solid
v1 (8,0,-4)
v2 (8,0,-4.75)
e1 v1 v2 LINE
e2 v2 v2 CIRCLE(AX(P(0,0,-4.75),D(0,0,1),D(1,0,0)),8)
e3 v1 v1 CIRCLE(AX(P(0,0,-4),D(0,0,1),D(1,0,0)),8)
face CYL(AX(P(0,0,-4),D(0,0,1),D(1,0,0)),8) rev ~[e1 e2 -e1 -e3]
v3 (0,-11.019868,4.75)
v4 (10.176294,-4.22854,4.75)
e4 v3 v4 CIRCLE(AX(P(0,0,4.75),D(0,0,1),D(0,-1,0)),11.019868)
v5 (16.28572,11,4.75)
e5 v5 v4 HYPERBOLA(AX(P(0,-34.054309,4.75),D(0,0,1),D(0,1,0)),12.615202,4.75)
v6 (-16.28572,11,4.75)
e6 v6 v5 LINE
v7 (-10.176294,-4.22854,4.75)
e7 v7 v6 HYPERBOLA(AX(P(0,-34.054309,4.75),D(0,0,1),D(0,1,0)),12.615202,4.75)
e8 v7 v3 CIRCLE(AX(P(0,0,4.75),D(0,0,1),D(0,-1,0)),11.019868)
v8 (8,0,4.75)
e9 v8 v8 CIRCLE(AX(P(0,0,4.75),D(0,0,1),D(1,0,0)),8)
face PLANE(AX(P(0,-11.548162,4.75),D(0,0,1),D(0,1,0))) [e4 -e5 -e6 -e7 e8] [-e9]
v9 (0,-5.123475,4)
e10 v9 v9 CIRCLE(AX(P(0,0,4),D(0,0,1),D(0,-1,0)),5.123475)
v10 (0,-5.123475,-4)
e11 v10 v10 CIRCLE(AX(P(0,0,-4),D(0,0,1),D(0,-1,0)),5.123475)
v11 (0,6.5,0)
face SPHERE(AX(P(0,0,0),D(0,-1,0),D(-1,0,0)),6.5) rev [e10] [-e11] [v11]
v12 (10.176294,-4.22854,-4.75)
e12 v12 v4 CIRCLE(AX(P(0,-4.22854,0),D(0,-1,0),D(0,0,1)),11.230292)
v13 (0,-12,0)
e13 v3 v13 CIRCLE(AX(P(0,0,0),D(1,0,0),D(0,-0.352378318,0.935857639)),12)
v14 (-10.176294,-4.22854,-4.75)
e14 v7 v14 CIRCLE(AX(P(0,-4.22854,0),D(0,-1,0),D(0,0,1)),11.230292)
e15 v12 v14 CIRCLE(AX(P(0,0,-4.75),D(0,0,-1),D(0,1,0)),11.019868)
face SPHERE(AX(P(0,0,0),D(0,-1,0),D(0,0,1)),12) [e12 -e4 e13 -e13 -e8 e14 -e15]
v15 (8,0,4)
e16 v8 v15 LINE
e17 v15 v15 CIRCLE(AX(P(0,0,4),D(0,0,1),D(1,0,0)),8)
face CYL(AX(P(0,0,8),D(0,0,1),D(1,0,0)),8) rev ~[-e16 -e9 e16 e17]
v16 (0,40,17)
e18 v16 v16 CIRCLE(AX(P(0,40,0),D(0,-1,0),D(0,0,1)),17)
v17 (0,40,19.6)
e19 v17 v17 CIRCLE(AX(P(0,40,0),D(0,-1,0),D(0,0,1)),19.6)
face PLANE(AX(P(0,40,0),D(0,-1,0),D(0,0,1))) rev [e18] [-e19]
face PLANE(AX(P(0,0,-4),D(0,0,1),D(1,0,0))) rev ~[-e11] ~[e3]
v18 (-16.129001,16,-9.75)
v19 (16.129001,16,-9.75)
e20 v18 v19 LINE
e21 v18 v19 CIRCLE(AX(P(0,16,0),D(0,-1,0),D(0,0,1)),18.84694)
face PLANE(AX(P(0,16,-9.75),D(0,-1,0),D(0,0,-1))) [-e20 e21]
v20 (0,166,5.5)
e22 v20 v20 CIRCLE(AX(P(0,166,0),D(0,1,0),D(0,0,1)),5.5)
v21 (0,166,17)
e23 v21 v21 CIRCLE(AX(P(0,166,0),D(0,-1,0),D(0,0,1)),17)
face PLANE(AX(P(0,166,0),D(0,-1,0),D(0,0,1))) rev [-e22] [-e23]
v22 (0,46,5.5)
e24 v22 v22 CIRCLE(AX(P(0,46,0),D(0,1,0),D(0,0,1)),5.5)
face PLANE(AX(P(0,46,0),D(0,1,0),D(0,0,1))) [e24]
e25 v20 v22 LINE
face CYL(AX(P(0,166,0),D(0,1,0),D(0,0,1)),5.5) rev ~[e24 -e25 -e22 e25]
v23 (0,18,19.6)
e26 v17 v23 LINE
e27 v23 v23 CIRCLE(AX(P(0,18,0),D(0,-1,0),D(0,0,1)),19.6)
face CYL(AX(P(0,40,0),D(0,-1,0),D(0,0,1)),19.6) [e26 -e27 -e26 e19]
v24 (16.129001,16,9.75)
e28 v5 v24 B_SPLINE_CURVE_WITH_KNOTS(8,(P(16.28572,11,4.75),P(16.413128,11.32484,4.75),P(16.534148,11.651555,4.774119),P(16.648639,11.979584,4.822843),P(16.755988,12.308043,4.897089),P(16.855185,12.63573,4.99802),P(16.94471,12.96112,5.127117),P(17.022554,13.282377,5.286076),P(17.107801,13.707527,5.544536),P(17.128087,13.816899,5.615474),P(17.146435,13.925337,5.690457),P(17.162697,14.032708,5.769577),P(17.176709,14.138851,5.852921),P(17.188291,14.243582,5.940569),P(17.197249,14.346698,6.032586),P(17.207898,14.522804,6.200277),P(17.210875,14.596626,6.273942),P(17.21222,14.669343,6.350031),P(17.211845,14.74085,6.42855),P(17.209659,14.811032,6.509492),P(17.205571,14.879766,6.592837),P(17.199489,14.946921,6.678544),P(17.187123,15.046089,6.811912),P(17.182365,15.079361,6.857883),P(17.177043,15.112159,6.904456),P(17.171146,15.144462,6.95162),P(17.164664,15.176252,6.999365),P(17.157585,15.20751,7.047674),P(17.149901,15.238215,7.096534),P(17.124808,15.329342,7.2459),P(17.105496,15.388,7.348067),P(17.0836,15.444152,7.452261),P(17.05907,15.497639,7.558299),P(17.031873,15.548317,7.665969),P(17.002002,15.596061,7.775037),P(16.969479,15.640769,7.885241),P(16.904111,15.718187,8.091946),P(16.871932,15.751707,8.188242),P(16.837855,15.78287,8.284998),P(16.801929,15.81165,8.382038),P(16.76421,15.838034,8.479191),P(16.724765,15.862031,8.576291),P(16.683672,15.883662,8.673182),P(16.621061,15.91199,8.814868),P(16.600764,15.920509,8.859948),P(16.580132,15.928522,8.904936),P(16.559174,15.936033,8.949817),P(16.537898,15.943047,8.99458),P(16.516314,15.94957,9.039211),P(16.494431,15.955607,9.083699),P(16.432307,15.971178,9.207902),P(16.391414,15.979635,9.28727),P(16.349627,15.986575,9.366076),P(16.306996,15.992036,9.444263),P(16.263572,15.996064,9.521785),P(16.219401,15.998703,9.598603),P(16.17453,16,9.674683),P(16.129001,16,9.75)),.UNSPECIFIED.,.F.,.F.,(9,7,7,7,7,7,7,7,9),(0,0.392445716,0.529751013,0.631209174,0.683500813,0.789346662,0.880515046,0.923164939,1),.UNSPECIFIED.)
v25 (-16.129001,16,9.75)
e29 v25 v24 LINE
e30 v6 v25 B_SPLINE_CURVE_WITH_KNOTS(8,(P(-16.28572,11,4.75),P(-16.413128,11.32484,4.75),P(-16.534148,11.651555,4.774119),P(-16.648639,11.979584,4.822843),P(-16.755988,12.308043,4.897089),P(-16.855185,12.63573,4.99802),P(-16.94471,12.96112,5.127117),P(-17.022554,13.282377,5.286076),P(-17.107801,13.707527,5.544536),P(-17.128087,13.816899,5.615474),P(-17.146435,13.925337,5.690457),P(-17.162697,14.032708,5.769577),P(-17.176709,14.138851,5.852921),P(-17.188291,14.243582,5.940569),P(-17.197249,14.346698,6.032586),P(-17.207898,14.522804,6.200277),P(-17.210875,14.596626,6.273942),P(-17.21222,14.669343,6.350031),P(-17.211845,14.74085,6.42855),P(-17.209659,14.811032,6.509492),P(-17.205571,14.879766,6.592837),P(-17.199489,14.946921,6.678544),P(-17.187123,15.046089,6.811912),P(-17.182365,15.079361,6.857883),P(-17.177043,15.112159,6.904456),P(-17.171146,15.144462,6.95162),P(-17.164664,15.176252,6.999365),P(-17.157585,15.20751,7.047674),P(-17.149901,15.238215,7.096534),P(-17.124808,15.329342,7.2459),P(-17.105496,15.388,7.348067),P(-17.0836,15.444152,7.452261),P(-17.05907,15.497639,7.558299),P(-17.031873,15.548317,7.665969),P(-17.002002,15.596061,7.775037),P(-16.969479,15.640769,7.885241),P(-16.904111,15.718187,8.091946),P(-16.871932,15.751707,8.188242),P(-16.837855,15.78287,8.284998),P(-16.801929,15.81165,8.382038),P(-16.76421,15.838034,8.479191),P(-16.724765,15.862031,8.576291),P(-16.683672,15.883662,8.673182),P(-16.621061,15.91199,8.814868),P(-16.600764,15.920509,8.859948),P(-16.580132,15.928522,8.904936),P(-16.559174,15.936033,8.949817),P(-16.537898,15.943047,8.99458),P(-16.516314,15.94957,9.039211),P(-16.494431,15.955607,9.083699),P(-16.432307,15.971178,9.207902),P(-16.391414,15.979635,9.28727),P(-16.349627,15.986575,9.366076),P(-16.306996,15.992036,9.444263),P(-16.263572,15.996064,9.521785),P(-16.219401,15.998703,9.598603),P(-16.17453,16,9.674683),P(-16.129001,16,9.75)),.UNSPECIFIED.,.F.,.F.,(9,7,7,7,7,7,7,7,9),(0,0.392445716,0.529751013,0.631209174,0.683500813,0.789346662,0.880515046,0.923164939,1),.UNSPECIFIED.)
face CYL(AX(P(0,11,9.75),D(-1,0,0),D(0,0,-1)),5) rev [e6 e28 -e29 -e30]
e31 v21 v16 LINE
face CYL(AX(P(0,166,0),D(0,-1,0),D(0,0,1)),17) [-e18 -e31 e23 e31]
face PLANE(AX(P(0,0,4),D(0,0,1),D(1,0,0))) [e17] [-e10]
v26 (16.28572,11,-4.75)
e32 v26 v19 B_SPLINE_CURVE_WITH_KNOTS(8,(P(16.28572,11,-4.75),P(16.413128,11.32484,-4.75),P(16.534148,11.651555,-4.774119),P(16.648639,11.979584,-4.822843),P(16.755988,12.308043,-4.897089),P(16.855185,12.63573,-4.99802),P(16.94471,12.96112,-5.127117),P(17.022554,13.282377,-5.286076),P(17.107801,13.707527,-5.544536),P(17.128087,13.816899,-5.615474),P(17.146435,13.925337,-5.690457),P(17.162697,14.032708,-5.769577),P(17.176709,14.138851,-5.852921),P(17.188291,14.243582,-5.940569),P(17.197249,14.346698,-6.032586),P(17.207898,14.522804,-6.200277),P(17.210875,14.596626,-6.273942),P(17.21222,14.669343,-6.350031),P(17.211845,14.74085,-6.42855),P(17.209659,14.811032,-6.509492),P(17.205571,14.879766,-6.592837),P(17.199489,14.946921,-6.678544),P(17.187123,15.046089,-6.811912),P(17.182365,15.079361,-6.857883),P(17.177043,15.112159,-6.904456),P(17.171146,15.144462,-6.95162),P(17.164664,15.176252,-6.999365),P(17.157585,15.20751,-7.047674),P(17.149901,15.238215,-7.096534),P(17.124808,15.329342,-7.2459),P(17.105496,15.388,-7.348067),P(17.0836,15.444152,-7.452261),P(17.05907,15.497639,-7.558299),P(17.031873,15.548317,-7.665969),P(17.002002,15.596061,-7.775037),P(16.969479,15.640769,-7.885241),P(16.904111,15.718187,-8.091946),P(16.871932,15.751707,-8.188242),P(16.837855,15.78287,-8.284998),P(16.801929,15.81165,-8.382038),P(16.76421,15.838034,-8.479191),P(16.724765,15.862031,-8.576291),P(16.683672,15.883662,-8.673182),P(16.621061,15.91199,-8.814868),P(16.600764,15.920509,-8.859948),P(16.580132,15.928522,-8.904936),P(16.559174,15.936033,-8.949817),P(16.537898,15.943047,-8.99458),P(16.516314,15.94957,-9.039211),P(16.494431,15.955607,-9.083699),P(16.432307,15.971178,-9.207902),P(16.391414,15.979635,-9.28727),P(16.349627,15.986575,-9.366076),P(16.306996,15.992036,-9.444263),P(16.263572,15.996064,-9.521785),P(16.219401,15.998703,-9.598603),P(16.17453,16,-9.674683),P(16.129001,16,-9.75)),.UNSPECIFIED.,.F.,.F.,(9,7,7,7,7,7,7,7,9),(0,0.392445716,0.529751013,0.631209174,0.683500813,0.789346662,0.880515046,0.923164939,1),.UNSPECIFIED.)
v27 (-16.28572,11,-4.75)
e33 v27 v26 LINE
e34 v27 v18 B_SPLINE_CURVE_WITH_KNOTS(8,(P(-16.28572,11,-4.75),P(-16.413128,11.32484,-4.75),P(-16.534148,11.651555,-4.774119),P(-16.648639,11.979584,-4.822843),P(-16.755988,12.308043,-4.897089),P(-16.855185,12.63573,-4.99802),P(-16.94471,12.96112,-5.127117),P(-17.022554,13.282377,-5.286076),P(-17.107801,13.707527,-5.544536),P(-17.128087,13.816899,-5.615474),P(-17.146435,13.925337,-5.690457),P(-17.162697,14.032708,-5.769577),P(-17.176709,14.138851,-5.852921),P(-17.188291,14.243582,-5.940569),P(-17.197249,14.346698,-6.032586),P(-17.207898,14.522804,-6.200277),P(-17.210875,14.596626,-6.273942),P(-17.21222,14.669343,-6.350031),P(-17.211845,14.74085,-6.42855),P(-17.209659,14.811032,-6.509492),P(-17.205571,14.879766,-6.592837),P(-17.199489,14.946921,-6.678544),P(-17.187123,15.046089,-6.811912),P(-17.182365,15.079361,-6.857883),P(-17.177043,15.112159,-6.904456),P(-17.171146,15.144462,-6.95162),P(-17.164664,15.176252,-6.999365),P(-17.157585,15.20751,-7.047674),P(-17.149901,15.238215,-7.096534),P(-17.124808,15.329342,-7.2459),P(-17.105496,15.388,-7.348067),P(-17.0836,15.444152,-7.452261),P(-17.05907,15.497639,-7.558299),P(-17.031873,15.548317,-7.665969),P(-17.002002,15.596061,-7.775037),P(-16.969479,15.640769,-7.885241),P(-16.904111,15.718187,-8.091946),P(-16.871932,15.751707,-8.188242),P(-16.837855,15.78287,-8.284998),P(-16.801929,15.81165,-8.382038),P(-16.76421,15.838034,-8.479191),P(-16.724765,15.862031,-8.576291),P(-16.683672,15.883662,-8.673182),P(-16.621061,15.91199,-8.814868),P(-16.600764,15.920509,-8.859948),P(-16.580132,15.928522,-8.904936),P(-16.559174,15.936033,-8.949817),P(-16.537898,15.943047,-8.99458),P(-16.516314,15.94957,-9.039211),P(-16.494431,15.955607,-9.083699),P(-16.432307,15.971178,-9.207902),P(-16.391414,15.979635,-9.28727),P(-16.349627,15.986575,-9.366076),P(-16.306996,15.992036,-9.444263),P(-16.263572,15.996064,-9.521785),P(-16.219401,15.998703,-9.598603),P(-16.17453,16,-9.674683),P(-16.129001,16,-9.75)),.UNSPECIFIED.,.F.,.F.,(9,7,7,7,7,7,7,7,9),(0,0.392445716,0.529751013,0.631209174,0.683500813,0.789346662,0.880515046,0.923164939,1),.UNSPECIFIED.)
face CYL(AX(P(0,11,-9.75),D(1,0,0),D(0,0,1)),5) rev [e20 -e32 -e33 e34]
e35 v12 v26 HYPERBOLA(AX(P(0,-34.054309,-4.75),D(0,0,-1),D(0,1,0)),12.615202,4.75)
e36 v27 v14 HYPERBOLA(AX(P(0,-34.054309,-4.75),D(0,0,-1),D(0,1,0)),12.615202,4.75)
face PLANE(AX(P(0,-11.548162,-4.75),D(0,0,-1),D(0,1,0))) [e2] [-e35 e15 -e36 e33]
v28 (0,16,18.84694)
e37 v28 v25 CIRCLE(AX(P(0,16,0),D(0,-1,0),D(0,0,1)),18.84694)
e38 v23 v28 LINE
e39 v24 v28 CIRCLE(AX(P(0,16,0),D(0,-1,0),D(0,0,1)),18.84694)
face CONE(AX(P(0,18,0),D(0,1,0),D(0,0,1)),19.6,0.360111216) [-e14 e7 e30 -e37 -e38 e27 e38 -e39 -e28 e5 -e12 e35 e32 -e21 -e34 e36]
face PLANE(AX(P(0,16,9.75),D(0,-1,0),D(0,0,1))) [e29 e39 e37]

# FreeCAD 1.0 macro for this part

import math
import FreeCAD as App
import Part
import Sketcher
Q = App.Units.Quantity

doc = App.newDocument("Part")
body = doc.addObject("PartDesign::Body", "Body")

# Sketch on XY plane
sketch1 = body.newObject("Sketcher::SketchObject", "Sketch")
sketch1.AttachmentSupport = (doc.getObject("XY_Plane"), [""])
sketch1.MapMode = "FlatFace"
sketch1.addGeometry(Part.LineSegment(App.Vector(0, 166, 0), App.Vector(-17, 166, 0)), False)
sketch1.addGeometry(Part.LineSegment(App.Vector(-17, 166, 0), App.Vector(-17, 40, 0)), False)
sketch1.addGeometry(Part.LineSegment(App.Vector(-17, 40, 0), App.Vector(-19.6, 40, 0)), False)
sketch1.addGeometry(Part.LineSegment(App.Vector(-19.6, 40, 0), App.Vector(-19.6, 18, 0)), False)
sketch1.addGeometry(Part.LineSegment(App.Vector(-19.6, 18, 0), App.Vector(-11.2, -4.2, 0)), False)
sketch1.addGeometry(Part.ArcOfCircle(Part.Circle(App.Vector(0, 0, 0), App.Vector(0, 0, 1), 12), math.radians(-159), math.radians(-90)), False)
sketch1.addGeometry(Part.LineSegment(App.Vector(0, -12, 0), App.Vector(0, 166, 0)), False)
sketch1.addConstraint(Sketcher.Constraint("Coincident", 0, 2, 1, 1))
sketch1.addConstraint(Sketcher.Constraint("Coincident", 1, 2, 2, 1))
sketch1.addConstraint(Sketcher.Constraint("Coincident", 2, 2, 3, 1))
sketch1.addConstraint(Sketcher.Constraint("Coincident", 3, 2, 4, 1))
sketch1.addConstraint(Sketcher.Constraint("Tangent", 4, 2, 5, 1))
sketch1.addConstraint(Sketcher.Constraint("Coincident", 5, 2, 6, 1))
sketch1.addConstraint(Sketcher.Constraint("Coincident", 6, 2, 0, 1))
sketch1.addConstraint(Sketcher.Constraint("Horizontal", 0))
sketch1.addConstraint(Sketcher.Constraint("Vertical", 1))
sketch1.addConstraint(Sketcher.Constraint("Horizontal", 2))
sketch1.addConstraint(Sketcher.Constraint("Vertical", 3))
sketch1.addConstraint(Sketcher.Constraint("Vertical", 6))
sketch1.addConstraint(Sketcher.Constraint("Coincident", 5, 3, -1, 1))
sketch1.addConstraint(Sketcher.Constraint("PointOnObject", 5, 2, -2))
sketch1.addConstraint(Sketcher.Constraint("Radius", 5, Q("12 mm")))
sketch1.addConstraint(Sketcher.Constraint("DistanceX", 0, 2, 0, 1, Q("17 mm")))
sketch1.addConstraint(Sketcher.Constraint("DistanceY", 1, 2, 1, 1, Q("126 mm")))
sketch1.addConstraint(Sketcher.Constraint("DistanceY", 3, 2, 3, 1, Q("22 mm")))
sketch1.addConstraint(Sketcher.Constraint("DistanceY", 6, 1, 6, 2, Q("178 mm")))
sketch1.addConstraint(Sketcher.Constraint("DistanceX", 2, 2, 2, 1, Q("2.6 mm")))
revolution = body.newObject("PartDesign::Revolution", "Revolution")
revolution.Profile = sketch1
revolution.ReferenceAxis = (sketch1, ["V_Axis"])
revolution.Angle = 360

# Sketch on YZ plane
sketch2 = body.newObject("Sketcher::SketchObject", "Sketch001")
sketch2.AttachmentSupport = (doc.getObject("YZ_Plane"), [""])
sketch2.MapMode = "FlatFace"
sketch2.addGeometry(Part.LineSegment(App.Vector(-12, 5, 0), App.Vector(11, 5, 0)), False)
sketch2.addGeometry(Part.ArcOfCircle(Part.Circle(App.Vector(11, 10, 0), App.Vector(0, 0, 1), 5), math.radians(-90), math.radians(0)), False)
sketch2.addGeometry(Part.LineSegment(App.Vector(16, 10, 0), App.Vector(16, 26, 0)), False)
sketch2.addGeometry(Part.LineSegment(App.Vector(16, 26, 0), App.Vector(-12, 26, 0)), False)
sketch2.addGeometry(Part.LineSegment(App.Vector(-12, 26, 0), App.Vector(-12, 5, 0)), False)
sketch2.addGeometry(Part.LineSegment(App.Vector(-12, -26, 0), App.Vector(16, -26, 0)), False)
sketch2.addGeometry(Part.LineSegment(App.Vector(16, -26, 0), App.Vector(16, -10, 0)), False)
sketch2.addGeometry(Part.ArcOfCircle(Part.Circle(App.Vector(11, -10, 0), App.Vector(0, 0, 1), 5), math.radians(0), math.radians(90)), False)
sketch2.addGeometry(Part.LineSegment(App.Vector(11, -5, 0), App.Vector(-12, -5, 0)), False)
sketch2.addGeometry(Part.LineSegment(App.Vector(-12, -5, 0), App.Vector(-12, -26, 0)), False)
sketch2.addConstraint(Sketcher.Constraint("Tangent", 0, 2, 1, 1))
sketch2.addConstraint(Sketcher.Constraint("Tangent", 1, 2, 2, 1))
sketch2.addConstraint(Sketcher.Constraint("Coincident", 2, 2, 3, 1))
sketch2.addConstraint(Sketcher.Constraint("Coincident", 3, 2, 4, 1))
sketch2.addConstraint(Sketcher.Constraint("Coincident", 4, 2, 0, 1))
sketch2.addConstraint(Sketcher.Constraint("Coincident", 5, 2, 6, 1))
sketch2.addConstraint(Sketcher.Constraint("Tangent", 6, 2, 7, 1))
sketch2.addConstraint(Sketcher.Constraint("Tangent", 7, 2, 8, 1))
sketch2.addConstraint(Sketcher.Constraint("Coincident", 8, 2, 9, 1))
sketch2.addConstraint(Sketcher.Constraint("Coincident", 9, 2, 5, 1))
sketch2.addConstraint(Sketcher.Constraint("Horizontal", 0))
sketch2.addConstraint(Sketcher.Constraint("Vertical", 2))
sketch2.addConstraint(Sketcher.Constraint("Horizontal", 3))
sketch2.addConstraint(Sketcher.Constraint("Vertical", 4))
sketch2.addConstraint(Sketcher.Constraint("Horizontal", 5))
sketch2.addConstraint(Sketcher.Constraint("Vertical", 6))
sketch2.addConstraint(Sketcher.Constraint("Horizontal", 8))
sketch2.addConstraint(Sketcher.Constraint("Vertical", 9))
sketch2.addConstraint(Sketcher.Constraint("Equal", 1, 7))
sketch2.addConstraint(Sketcher.Constraint("Symmetric", 1, 3, 7, 3, -1))
sketch2.addConstraint(Sketcher.Constraint("Symmetric", 3, 2, 9, 2, -1))
sketch2.addConstraint(Sketcher.Constraint("Radius", 1, Q("5 mm")))
sketch2.addConstraint(Sketcher.Constraint("DistanceX", -1, 1, 1, 3, Q("11 mm")))
sketch2.addConstraint(Sketcher.Constraint("DistanceY", 7, 3, 1, 3, Q("19.5 mm")))
sketch2.addConstraint(Sketcher.Constraint("DistanceX", 0, 1, 0, 2, Q("22.548162 mm")))
sketch2.addConstraint(Sketcher.Constraint("DistanceY", 2, 1, 2, 2, Q("16.120257 mm")))
pocket1 = body.newObject("PartDesign::Pocket", "Pocket")
pocket1.Profile = sketch2
pocket1.Length = 50
pocket1.Midplane = True

# Sketch on XY plane
sketch3 = body.newObject("Sketcher::SketchObject", "Sketch002")
sketch3.AttachmentSupport = (doc.getObject("XY_Plane"), [""])
sketch3.MapMode = "FlatFace"
sketch3.addGeometry(Part.LineSegment(App.Vector(0, -6, 0), App.Vector(0, 6, 0)), False)
sketch3.addGeometry(Part.ArcOfCircle(Part.Circle(App.Vector(0, 0, 0), App.Vector(0, 0, 1), 6), math.radians(90), math.radians(270)), False)
sketch3.addConstraint(Sketcher.Constraint("Coincident", 0, 1, 1, 2))
sketch3.addConstraint(Sketcher.Constraint("Coincident", 1, 1, 0, 2))
sketch3.addConstraint(Sketcher.Constraint("Vertical", 0))
sketch3.addConstraint(Sketcher.Constraint("Coincident", 1, 3, -1, 1))
sketch3.addConstraint(Sketcher.Constraint("PointOnObject", 0, 1, -2))
sketch3.addConstraint(Sketcher.Constraint("Radius", 1, Q("6.5 mm")))
groove = body.newObject("PartDesign::Groove", "Groove")
groove.Profile = sketch3
groove.ReferenceAxis = (sketch3, ["V_Axis"])
groove.Angle = 360

# Sketch on XY plane
sketch4 = body.newObject("Sketcher::SketchObject", "Sketch003")
sketch4.AttachmentSupport = (doc.getObject("XY_Plane"), [""])
sketch4.MapMode = "FlatFace"
sketch4.AttachmentOffset = App.Placement(App.Vector(0, 0, -4), App.Rotation())
sketch4.addGeometry(Part.Circle(App.Vector(0, 0, 0), App.Vector(0, 0, 1), 8), False)
sketch4.addConstraint(Sketcher.Constraint("Coincident", 0, 3, -1, 1))
sketch4.addConstraint(Sketcher.Constraint("Diameter", 0, Q("16 mm")))
pocket2 = body.newObject("PartDesign::Pocket", "Pocket001")
pocket2.Profile = sketch4
pocket2.Length = 4

# Sketch on XY plane
sketch5 = body.newObject("Sketcher::SketchObject", "Sketch004")
sketch5.AttachmentSupport = (doc.getObject("XY_Plane"), [""])
sketch5.MapMode = "FlatFace"
sketch5.AttachmentOffset = App.Placement(App.Vector(0, 0, 8), App.Rotation())
sketch5.addGeometry(Part.Circle(App.Vector(0, 0, 0), App.Vector(0, 0, 1), 8), False)
sketch5.addConstraint(Sketcher.Constraint("Coincident", 0, 3, -1, 1))
sketch5.addConstraint(Sketcher.Constraint("Diameter", 0, Q("16 mm")))
pocket3 = body.newObject("PartDesign::Pocket", "Pocket002")
pocket3.Profile = sketch5
pocket3.Length = 4

# Sketch on XZ plane
sketch6 = body.newObject("Sketcher::SketchObject", "Sketch005")
sketch6.AttachmentSupport = (doc.getObject("XZ_Plane"), [""])
sketch6.MapMode = "FlatFace"
sketch6.AttachmentOffset = App.Placement(App.Vector(0, 0, -166), App.Rotation())
sketch6.addGeometry(Part.Circle(App.Vector(0, 0, 0), App.Vector(0, 0, 1), 6), False)
sketch6.addConstraint(Sketcher.Constraint("Coincident", 0, 3, -1, 1))
sketch6.addConstraint(Sketcher.Constraint("Diameter", 0, Q("11 mm")))
pocket4 = body.newObject("PartDesign::Pocket", "Pocket003")
pocket4.Profile = sketch6
pocket4.Length = 120
pocket4.Reversed = True

doc.recompute()
